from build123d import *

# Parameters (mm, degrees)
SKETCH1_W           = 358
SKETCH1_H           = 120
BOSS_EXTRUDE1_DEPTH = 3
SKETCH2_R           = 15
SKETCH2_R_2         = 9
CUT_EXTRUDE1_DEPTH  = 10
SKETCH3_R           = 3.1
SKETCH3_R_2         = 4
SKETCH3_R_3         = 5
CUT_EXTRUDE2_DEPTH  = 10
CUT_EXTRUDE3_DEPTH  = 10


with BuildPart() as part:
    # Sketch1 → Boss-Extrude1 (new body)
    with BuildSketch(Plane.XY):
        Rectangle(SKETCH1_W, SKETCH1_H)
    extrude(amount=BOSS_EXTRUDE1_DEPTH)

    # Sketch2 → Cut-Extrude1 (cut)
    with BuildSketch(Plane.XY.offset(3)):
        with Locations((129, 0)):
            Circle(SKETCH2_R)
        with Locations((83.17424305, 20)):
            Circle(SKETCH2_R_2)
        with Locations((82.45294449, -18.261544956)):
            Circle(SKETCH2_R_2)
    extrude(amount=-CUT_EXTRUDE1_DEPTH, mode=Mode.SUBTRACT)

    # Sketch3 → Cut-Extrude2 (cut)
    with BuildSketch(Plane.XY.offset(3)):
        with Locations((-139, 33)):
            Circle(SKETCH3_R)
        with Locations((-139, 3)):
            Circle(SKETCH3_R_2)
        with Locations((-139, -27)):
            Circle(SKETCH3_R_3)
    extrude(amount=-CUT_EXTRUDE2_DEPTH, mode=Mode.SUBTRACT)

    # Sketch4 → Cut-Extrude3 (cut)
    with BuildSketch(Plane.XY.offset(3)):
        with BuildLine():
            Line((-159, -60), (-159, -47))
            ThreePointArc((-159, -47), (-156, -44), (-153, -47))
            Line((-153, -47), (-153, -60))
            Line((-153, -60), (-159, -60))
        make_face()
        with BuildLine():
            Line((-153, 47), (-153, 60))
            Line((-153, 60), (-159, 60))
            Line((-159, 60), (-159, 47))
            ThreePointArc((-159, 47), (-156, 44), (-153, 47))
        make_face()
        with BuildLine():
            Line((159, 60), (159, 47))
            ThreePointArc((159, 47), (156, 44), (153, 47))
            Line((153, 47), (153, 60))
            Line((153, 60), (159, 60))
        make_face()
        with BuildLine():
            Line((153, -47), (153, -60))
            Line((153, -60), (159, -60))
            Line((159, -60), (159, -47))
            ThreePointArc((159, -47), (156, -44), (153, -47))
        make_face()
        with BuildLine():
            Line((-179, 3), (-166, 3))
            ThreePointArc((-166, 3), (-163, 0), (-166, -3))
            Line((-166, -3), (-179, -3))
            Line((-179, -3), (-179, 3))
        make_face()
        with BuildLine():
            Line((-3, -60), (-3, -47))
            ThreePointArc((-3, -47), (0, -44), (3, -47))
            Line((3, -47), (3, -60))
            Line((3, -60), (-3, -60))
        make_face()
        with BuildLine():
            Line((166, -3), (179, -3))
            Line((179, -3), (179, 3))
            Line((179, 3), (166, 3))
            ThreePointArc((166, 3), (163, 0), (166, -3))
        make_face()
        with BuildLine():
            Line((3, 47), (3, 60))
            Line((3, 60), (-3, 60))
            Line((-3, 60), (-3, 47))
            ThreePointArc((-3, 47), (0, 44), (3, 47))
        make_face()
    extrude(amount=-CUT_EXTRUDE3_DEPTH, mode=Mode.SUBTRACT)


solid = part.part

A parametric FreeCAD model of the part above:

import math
import FreeCAD as App
import Part
import Sketcher


def add_polygon(sketch, points):
    """Adds a closed chain of lines whose ends are joined by coincident constraints."""
    first, n = sketch.GeometryCount, len(points)
    for a, b in zip(points, points[1:] + points[:1]):
        sketch.addGeometry(Part.LineSegment(App.Vector(*a, 0), App.Vector(*b, 0)), False)
    for i in range(n):
        sketch.addConstraint(Sketcher.Constraint("Coincident", first + i, 2, first + (i + 1) % n, 1))

doc = App.newDocument("Part")
body = doc.addObject("PartDesign::Body", "Body")

# Sketch on XY plane
sketch1 = body.newObject("Sketcher::SketchObject", "Sketch")
sketch1.AttachmentSupport = (doc.getObject("XY_Plane"), [""])
sketch1.MapMode = "FlatFace"
add_polygon(sketch1, [(-179, 60), (-179, -60), (179, -60), (179, 60)])  # lines 0-3
sketch1.addConstraint(Sketcher.Constraint("Vertical", 0))
sketch1.addConstraint(Sketcher.Constraint("Horizontal", 1))
sketch1.addConstraint(Sketcher.Constraint("Vertical", 2))
sketch1.addConstraint(Sketcher.Constraint("Horizontal", 3))
sketch1.addConstraint(Sketcher.Constraint("Symmetric", 0, 2, 2, 2, -1, 1))
sketch1.addConstraint(Sketcher.Constraint("DistanceX", 1, 1, 1, 2, 358.0))
sketch1.addConstraint(Sketcher.Constraint("DistanceY", 0, 2, 0, 1, 120.0))
pad1 = body.newObject("PartDesign::Pad", "Pad")
pad1.Profile = sketch1
pad1.Length = 3

# Sketch on XY plane
sketch2 = body.newObject("Sketcher::SketchObject", "Sketch001")
sketch2.AttachmentSupport = (doc.getObject("XY_Plane"), [""])
sketch2.MapMode = "FlatFace"
sketch2.AttachmentOffset = App.Placement(App.Vector(0, 0, 3), App.Rotation())
sketch2.addGeometry(Part.Circle(App.Vector(129, 0, 0), App.Vector(0, 0, 1), 15), False)
sketch2.addGeometry(Part.Circle(App.Vector(83.174243, 20, 0), App.Vector(0, 0, 1), 9), False)
sketch2.addGeometry(Part.Circle(App.Vector(82.452944, -18.261545, 0), App.Vector(0, 0, 1), 9), False)
sketch2.addConstraint(Sketcher.Constraint("Equal", 1, 2))
sketch2.addConstraint(Sketcher.Constraint("PointOnObject", 0, 3, -1))
sketch2.addConstraint(Sketcher.Constraint("Diameter", 0, 30.0))
sketch2.addConstraint(Sketcher.Constraint("Diameter", 1, 18.0))
sketch2.addConstraint(Sketcher.Constraint("DistanceX", -1, 1, 0, 3, 129.0))
sketch2.addConstraint(Sketcher.Constraint("DistanceY", -1, 1, 1, 3, 20.0))
sketch2.addConstraint(Sketcher.Constraint("DistanceX", 2, 3, 1, 3, 0.721299))
sketch2.addConstraint(Sketcher.Constraint("DistanceX", -1, 1, 1, 3, 83.174243))
sketch2.addConstraint(Sketcher.Constraint("DistanceY", 2, 3, -1, 1, 18.261545))
pocket1 = body.newObject("PartDesign::Pocket", "Pocket")
pocket1.Profile = sketch2
pocket1.Length = 10

# Sketch on XY plane
sketch3 = body.newObject("Sketcher::SketchObject", "Sketch002")
sketch3.AttachmentSupport = (doc.getObject("XY_Plane"), [""])
sketch3.MapMode = "FlatFace"
sketch3.AttachmentOffset = App.Placement(App.Vector(0, 0, 3), App.Rotation())
sketch3.addGeometry(Part.Circle(App.Vector(-139, 33, 0), App.Vector(0, 0, 1), 3.1), False)
sketch3.addGeometry(Part.Circle(App.Vector(-139, 3, 0), App.Vector(0, 0, 1), 4), False)
sketch3.addGeometry(Part.Circle(App.Vector(-139, -27, 0), App.Vector(0, 0, 1), 5), False)
sketch3.addConstraint(Sketcher.Constraint("Vertical", 0, 3, 1, 3))
sketch3.addConstraint(Sketcher.Constraint("Vertical", 1, 3, 2, 3))
sketch3.addConstraint(Sketcher.Constraint("Diameter", 1, 8.0))
sketch3.addConstraint(Sketcher.Constraint("Diameter", 2, 10.0))
sketch3.addConstraint(Sketcher.Constraint("Diameter", 0, 6.2))
sketch3.addConstraint(Sketcher.Constraint("DistanceX", 0, 3, -1, 1, 139.0))
sketch3.addConstraint(Sketcher.Constraint("DistanceY", -1, 1, 0, 3, 33.0))
sketch3.addConstraint(Sketcher.Constraint("DistanceY", -1, 1, 1, 3, 3.0))
sketch3.addConstraint(Sketcher.Constraint("DistanceY", 2, 3, -1, 1, 27.0))
pocket2 = body.newObject("PartDesign::Pocket", "Pocket001")
pocket2.Profile = sketch3
pocket2.Length = 10

# Sketch on XY plane
sketch4 = body.newObject("Sketcher::SketchObject", "Sketch003")
sketch4.AttachmentSupport = (doc.getObject("XY_Plane"), [""])
sketch4.MapMode = "FlatFace"
sketch4.AttachmentOffset = App.Placement(App.Vector(0, 0, 3), App.Rotation())
sketch4.addGeometry(Part.LineSegment(App.Vector(-159, -47, 0), App.Vector(-159, -60, 0)), False)
sketch4.addGeometry(Part.LineSegment(App.Vector(-159, -60, 0), App.Vector(-153, -60, 0)), False)
sketch4.addGeometry(Part.LineSegment(App.Vector(-153, -60, 0), App.Vector(-153, -47, 0)), False)
sketch4.addGeometry(Part.ArcOfCircle(Part.Circle(App.Vector(-156, -47, 0), App.Vector(0, 0, 1), 3), math.radians(0), math.radians(180)), False)
sketch4.addGeometry(Part.LineSegment(App.Vector(-153, 47, 0), App.Vector(-153, 60, 0)), False)
sketch4.addGeometry(Part.LineSegment(App.Vector(-153, 60, 0), App.Vector(-159, 60, 0)), False)
sketch4.addGeometry(Part.LineSegment(App.Vector(-159, 60, 0), App.Vector(-159, 47, 0)), False)
sketch4.addGeometry(Part.ArcOfCircle(Part.Circle(App.Vector(-156, 47, 0), App.Vector(0, 0, 1), 3), math.radians(180), math.radians(360)), False)
sketch4.addGeometry(Part.LineSegment(App.Vector(159, 47, 0), App.Vector(159, 60, 0)), False)
sketch4.addGeometry(Part.LineSegment(App.Vector(159, 60, 0), App.Vector(153, 60, 0)), False)
sketch4.addGeometry(Part.LineSegment(App.Vector(153, 60, 0), App.Vector(153, 47, 0)), False)
sketch4.addGeometry(Part.ArcOfCircle(Part.Circle(App.Vector(156, 47, 0), App.Vector(0, 0, 1), 3), math.radians(180), math.radians(360)), False)
sketch4.addGeometry(Part.LineSegment(App.Vector(153, -47, 0), App.Vector(153, -60, 0)), False)
sketch4.addGeometry(Part.LineSegment(App.Vector(153, -60, 0), App.Vector(159, -60, 0)), False)
sketch4.addGeometry(Part.LineSegment(App.Vector(159, -60, 0), App.Vector(159, -47, 0)), False)
sketch4.addGeometry(Part.ArcOfCircle(Part.Circle(App.Vector(156, -47, 0), App.Vector(0, 0, 1), 3), math.radians(0), math.radians(180)), False)
sketch4.addGeometry(Part.LineSegment(App.Vector(-166, 3, 0), App.Vector(-179, 3, 0)), False)
sketch4.addGeometry(Part.LineSegment(App.Vector(-179, 3, 0), App.Vector(-179, -3, 0)), False)
sketch4.addGeometry(Part.LineSegment(App.Vector(-179, -3, 0), App.Vector(-166, -3, 0)), False)
sketch4.addGeometry(Part.ArcOfCircle(Part.Circle(App.Vector(-166, 0, 0), App.Vector(0, 0, 1), 3), math.radians(-90), math.radians(90)), False)
sketch4.addGeometry(Part.LineSegment(App.Vector(-3, -47, 0), App.Vector(-3, -60, 0)), False)
sketch4.addGeometry(Part.LineSegment(App.Vector(-3, -60, 0), App.Vector(3, -60, 0)), False)
sketch4.addGeometry(Part.LineSegment(App.Vector(3, -60, 0), App.Vector(3, -47, 0)), False)
sketch4.addGeometry(Part.ArcOfCircle(Part.Circle(App.Vector(0, -47, 0), App.Vector(0, 0, 1), 3), math.radians(0), math.radians(180)), False)
sketch4.addGeometry(Part.LineSegment(App.Vector(166, -3, 0), App.Vector(179, -3, 0)), False)
sketch4.addGeometry(Part.LineSegment(App.Vector(179, -3, 0), App.Vector(179, 3, 0)), False)
sketch4.addGeometry(Part.LineSegment(App.Vector(179, 3, 0), App.Vector(166, 3, 0)), False)
sketch4.addGeometry(Part.ArcOfCircle(Part.Circle(App.Vector(166, 0, 0), App.Vector(0, 0, 1), 3), math.radians(90), math.radians(270)), False)
sketch4.addGeometry(Part.LineSegment(App.Vector(3, 47, 0), App.Vector(3, 60, 0)), False)
sketch4.addGeometry(Part.LineSegment(App.Vector(3, 60, 0), App.Vector(-3, 60, 0)), False)
sketch4.addGeometry(Part.LineSegment(App.Vector(-3, 60, 0), App.Vector(-3, 47, 0)), False)
sketch4.addGeometry(Part.ArcOfCircle(Part.Circle(App.Vector(0, 47, 0), App.Vector(0, 0, 1), 3), math.radians(180), math.radians(360)), False)
sketch4.addConstraint(Sketcher.Constraint("Coincident", 0, 2, 1, 1))
sketch4.addConstraint(Sketcher.Constraint("Coincident", 1, 2, 2, 1))
sketch4.addConstraint(Sketcher.Constraint("Tangent", 2, 2, 3, 1))
sketch4.addConstraint(Sketcher.Constraint("Tangent", 3, 2, 0, 1))
sketch4.addConstraint(Sketcher.Constraint("Coincident", 4, 2, 5, 1))
sketch4.addConstraint(Sketcher.Constraint("Coincident", 5, 2, 6, 1))
sketch4.addConstraint(Sketcher.Constraint("Tangent", 6, 2, 7, 1))
sketch4.addConstraint(Sketcher.Constraint("Tangent", 7, 2, 4, 1))
sketch4.addConstraint(Sketcher.Constraint("Coincident", 8, 2, 9, 1))
sketch4.addConstraint(Sketcher.Constraint("Coincident", 9, 2, 10, 1))
sketch4.addConstraint(Sketcher.Constraint("Tangent", 10, 2, 11, 1))
sketch4.addConstraint(Sketcher.Constraint("Tangent", 11, 2, 8, 1))
sketch4.addConstraint(Sketcher.Constraint("Coincident", 12, 2, 13, 1))
sketch4.addConstraint(Sketcher.Constraint("Coincident", 13, 2, 14, 1))
sketch4.addConstraint(Sketcher.Constraint("Tangent", 14, 2, 15, 1))
sketch4.addConstraint(Sketcher.Constraint("Tangent", 15, 2, 12, 1))
sketch4.addConstraint(Sketcher.Constraint("Coincident", 16, 2, 17, 1))
sketch4.addConstraint(Sketcher.Constraint("Coincident", 17, 2, 18, 1))
sketch4.addConstraint(Sketcher.Constraint("Tangent", 18, 2, 19, 1))
sketch4.addConstraint(Sketcher.Constraint("Tangent", 19, 2, 16, 1))
sketch4.addConstraint(Sketcher.Constraint("Coincident", 20, 2, 21, 1))
sketch4.addConstraint(Sketcher.Constraint("Coincident", 21, 2, 22, 1))
sketch4.addConstraint(Sketcher.Constraint("Tangent", 22, 2, 23, 1))
sketch4.addConstraint(Sketcher.Constraint("Tangent", 23, 2, 20, 1))
sketch4.addConstraint(Sketcher.Constraint("Coincident", 24, 2, 25, 1))
sketch4.addConstraint(Sketcher.Constraint("Coincident", 25, 2, 26, 1))
sketch4.addConstraint(Sketcher.Constraint("Tangent", 26, 2, 27, 1))
sketch4.addConstraint(Sketcher.Constraint("Tangent", 27, 2, 24, 1))
sketch4.addConstraint(Sketcher.Constraint("Coincident", 28, 2, 29, 1))
sketch4.addConstraint(Sketcher.Constraint("Coincident", 29, 2, 30, 1))
sketch4.addConstraint(Sketcher.Constraint("Tangent", 30, 2, 31, 1))
sketch4.addConstraint(Sketcher.Constraint("Tangent", 31, 2, 28, 1))
sketch4.addConstraint(Sketcher.Constraint("Vertical", 0))
sketch4.addConstraint(Sketcher.Constraint("Horizontal", 1))
sketch4.addConstraint(Sketcher.Constraint("Vertical", 2))
sketch4.addConstraint(Sketcher.Constraint("Vertical", 4))
sketch4.addConstraint(Sketcher.Constraint("Horizontal", 5))
sketch4.addConstraint(Sketcher.Constraint("Vertical", 6))
sketch4.addConstraint(Sketcher.Constraint("Vertical", 8))
sketch4.addConstraint(Sketcher.Constraint("Horizontal", 9))
sketch4.addConstraint(Sketcher.Constraint("Vertical", 10))
sketch4.addConstraint(Sketcher.Constraint("Vertical", 12))
sketch4.addConstraint(Sketcher.Constraint("Horizontal", 13))
sketch4.addConstraint(Sketcher.Constraint("Vertical", 14))
sketch4.addConstraint(Sketcher.Constraint("Horizontal", 16))
sketch4.addConstraint(Sketcher.Constraint("Vertical", 17))
sketch4.addConstraint(Sketcher.Constraint("Horizontal", 18))
sketch4.addConstraint(Sketcher.Constraint("Vertical", 20))
sketch4.addConstraint(Sketcher.Constraint("Horizontal", 21))
sketch4.addConstraint(Sketcher.Constraint("Vertical", 22))
sketch4.addConstraint(Sketcher.Constraint("Horizontal", 24))
sketch4.addConstraint(Sketcher.Constraint("Vertical", 25))
sketch4.addConstraint(Sketcher.Constraint("Horizontal", 26))
sketch4.addConstraint(Sketcher.Constraint("Vertical", 28))
sketch4.addConstraint(Sketcher.Constraint("Horizontal", 29))
sketch4.addConstraint(Sketcher.Constraint("Vertical", 30))
sketch4.addConstraint(Sketcher.Constraint("Equal", 3, 7))
sketch4.addConstraint(Sketcher.Constraint("Equal", 7, 11))
sketch4.addConstraint(Sketcher.Constraint("Equal", 11, 15))
sketch4.addConstraint(Sketcher.Constraint("Equal", 15, 19))
sketch4.addConstraint(Sketcher.Constraint("Equal", 19, 23))
sketch4.addConstraint(Sketcher.Constraint("Equal", 23, 27))
sketch4.addConstraint(Sketcher.Constraint("Equal", 27, 31))
sketch4.addConstraint(Sketcher.Constraint("Symmetric", 3, 3, 11, 3, -1, 1))
sketch4.addConstraint(Sketcher.Constraint("Symmetric", 7, 3, 15, 3, -1, 1))
sketch4.addConstraint(Sketcher.Constraint("Symmetric", 19, 3, 27, 3, -1, 1))
sketch4.addConstraint(Sketcher.Constraint("Symmetric", 23, 3, 31, 3, -1, 1))
sketch4.addConstraint(Sketcher.Constraint("Symmetric", 7, 3, 11, 3, -2))
sketch4.addConstraint(Sketcher.Constraint("Symmetric", 17, 2, 24, 2, -2))
sketch4.addConstraint(Sketcher.Constraint("Symmetric", 21, 2, 28, 2, -1))
sketch4.addConstraint(Sketcher.Constraint("Horizontal", 15, 3, 23, 3))
sketch4.addConstraint(Sketcher.Constraint("Horizontal", 5, 2, 8, 2))
sketch4.addConstraint(Sketcher.Constraint("Horizontal", 1, 2, 12, 2))
sketch4.addConstraint(Sketcher.Constraint("Horizontal", 13, 2, 20, 2))
sketch4.addConstraint(Sketcher.Constraint("Horizontal", 9, 2, 28, 2))
sketch4.addConstraint(Sketcher.Constraint("Equal", 26, 0))
sketch4.addConstraint(Sketcher.Constraint("Radius", 3, 3.0))
sketch4.addConstraint(Sketcher.Constraint("DistanceX", 16, 2, 16, 1, 13.0))
sketch4.addConstraint(Sketcher.Constraint("DistanceX", 3, 3, -1, 1, 156.0))
sketch4.addConstraint(Sketcher.Constraint("DistanceY", 3, 3, -1, 1, 47.0))
sketch4.addConstraint(Sketcher.Constraint("DistanceX", 19, 3, -1, 1, 166.0))
pocket3 = body.newObject("PartDesign::Pocket", "Pocket002")
pocket3.Profile = sketch4
pocket3.Length = 10

doc.recompute()
